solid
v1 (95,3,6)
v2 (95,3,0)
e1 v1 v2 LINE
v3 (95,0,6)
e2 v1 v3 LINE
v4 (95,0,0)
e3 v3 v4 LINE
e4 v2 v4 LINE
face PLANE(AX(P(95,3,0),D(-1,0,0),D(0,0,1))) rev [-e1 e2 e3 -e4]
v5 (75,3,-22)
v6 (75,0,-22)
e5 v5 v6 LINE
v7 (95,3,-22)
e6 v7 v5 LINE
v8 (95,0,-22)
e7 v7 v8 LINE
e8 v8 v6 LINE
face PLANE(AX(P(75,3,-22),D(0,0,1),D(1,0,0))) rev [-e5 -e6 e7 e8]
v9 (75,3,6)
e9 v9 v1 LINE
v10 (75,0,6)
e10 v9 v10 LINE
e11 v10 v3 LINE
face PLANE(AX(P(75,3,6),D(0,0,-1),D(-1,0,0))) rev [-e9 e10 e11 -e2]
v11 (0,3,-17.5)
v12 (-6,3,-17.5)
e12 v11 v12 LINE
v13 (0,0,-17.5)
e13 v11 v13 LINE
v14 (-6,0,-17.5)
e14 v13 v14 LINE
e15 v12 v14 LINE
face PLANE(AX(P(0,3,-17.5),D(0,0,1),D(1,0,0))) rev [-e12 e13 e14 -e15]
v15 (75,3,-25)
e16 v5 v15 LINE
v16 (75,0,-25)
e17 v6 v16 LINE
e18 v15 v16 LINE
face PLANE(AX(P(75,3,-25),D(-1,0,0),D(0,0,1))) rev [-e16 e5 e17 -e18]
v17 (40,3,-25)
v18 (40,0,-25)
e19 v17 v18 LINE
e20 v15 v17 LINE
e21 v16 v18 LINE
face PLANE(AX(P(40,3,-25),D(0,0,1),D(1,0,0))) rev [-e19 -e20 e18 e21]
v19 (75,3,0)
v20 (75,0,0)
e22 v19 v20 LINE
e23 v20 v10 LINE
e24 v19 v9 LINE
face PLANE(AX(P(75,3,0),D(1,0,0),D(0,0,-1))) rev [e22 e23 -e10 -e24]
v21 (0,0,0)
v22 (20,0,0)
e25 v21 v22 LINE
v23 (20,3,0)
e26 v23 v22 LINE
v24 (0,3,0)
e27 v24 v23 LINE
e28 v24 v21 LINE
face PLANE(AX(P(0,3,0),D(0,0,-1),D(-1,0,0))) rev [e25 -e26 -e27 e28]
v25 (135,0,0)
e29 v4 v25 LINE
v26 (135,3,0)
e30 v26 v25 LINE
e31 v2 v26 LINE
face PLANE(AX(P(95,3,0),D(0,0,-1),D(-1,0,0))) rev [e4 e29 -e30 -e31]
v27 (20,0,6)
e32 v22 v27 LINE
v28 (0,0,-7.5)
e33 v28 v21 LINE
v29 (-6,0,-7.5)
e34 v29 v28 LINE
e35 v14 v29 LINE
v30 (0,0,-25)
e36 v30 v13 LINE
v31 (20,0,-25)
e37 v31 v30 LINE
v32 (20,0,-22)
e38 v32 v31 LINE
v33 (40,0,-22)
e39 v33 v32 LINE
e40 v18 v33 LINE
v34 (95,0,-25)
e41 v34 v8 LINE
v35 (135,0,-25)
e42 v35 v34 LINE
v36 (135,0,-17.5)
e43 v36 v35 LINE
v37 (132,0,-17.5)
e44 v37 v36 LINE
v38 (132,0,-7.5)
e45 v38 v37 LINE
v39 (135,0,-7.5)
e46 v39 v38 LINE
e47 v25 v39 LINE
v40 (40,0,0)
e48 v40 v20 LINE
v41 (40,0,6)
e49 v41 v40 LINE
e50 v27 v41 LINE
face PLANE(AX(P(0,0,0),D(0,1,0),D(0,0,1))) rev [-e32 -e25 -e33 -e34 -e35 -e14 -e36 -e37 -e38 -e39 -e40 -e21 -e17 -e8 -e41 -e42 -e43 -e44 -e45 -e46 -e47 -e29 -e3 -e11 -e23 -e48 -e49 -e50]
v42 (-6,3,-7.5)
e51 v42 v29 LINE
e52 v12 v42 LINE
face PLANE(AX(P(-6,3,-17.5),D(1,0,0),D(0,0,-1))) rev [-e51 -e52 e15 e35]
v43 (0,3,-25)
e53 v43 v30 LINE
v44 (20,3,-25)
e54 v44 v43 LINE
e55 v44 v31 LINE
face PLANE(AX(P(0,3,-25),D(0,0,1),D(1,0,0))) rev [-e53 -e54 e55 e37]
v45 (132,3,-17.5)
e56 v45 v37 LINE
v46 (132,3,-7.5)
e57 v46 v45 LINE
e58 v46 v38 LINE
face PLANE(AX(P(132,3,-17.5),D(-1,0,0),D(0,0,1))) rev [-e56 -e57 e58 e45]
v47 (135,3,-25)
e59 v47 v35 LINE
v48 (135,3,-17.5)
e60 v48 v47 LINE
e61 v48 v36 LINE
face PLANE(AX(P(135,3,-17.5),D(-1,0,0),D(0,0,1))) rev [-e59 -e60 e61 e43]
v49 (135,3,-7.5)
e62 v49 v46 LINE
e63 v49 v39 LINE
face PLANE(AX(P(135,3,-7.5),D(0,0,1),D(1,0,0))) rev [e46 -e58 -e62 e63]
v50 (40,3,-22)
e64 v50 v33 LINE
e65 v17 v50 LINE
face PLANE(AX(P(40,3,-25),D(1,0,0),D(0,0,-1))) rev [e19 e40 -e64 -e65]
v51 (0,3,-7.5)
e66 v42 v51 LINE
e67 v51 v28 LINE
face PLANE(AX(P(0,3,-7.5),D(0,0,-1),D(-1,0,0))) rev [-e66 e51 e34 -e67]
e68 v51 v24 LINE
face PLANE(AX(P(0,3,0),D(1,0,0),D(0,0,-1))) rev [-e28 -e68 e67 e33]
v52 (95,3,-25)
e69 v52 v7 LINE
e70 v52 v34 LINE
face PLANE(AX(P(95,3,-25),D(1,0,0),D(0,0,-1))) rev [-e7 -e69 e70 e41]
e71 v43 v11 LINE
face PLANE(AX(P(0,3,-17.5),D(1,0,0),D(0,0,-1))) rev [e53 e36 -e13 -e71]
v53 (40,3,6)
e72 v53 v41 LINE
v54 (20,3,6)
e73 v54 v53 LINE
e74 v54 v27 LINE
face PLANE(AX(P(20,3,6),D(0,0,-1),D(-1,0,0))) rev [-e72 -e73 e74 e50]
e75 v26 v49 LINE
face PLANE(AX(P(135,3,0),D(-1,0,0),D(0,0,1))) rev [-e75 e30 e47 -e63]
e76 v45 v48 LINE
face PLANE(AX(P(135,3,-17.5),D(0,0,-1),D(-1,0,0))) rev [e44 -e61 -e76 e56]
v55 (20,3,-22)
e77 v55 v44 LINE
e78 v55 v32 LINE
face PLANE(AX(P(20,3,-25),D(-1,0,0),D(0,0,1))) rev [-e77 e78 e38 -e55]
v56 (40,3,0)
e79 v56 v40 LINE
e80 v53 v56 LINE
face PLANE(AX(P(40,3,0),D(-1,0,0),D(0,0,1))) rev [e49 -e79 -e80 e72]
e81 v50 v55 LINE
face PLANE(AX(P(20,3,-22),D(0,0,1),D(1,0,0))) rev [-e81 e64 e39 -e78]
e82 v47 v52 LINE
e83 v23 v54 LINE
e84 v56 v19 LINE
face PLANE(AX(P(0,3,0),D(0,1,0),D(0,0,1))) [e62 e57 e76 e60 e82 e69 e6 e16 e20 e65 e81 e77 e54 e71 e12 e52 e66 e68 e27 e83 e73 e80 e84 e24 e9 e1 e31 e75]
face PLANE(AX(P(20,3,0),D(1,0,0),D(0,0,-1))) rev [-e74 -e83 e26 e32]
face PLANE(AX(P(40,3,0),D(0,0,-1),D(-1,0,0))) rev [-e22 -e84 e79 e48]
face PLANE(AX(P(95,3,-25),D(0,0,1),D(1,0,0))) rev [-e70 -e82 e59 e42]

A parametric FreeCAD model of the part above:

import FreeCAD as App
import Part
import Sketcher
from FreeCAD import Vector


def add_polygon(sketch, points):
    """Adds a closed chain of lines whose ends are joined by coincident constraints."""
    first, n = sketch.GeometryCount, len(points)
    for a, b in zip(points, points[1:] + points[:1]):
        sketch.addGeometry(Part.LineSegment(App.Vector(*a, 0), App.Vector(*b, 0)), False)
    for i in range(n):
        sketch.addConstraint(Sketcher.Constraint("Coincident", first + i, 2, first + (i + 1) % n, 1))

doc = App.newDocument("Part")
body = doc.addObject("PartDesign::Body", "Body")

# Sketch on XZ plane
sketch1 = doc.addObject("Sketcher::SketchObject", "Sketch")
body.addObject(sketch1)
sketch1.AttachmentSupport = (doc.XZ_Plane, [""])
sketch1.MapMode = "FlatFace"
add_polygon(sketch1, [(135, -17.5), (135, -25), (95, -25), (95, -22), (75, -22), (75, -25), (40, -25), (40, -22), (20, -22), (20, -25), (0, -25), (0, -17.5), (-6, -17.5), (-6, -7.5), (0, -7.5), (0, 0), (20, 0), (20, 6), (40, 6), (40, 0), (75, 0), (75, 6), (95, 6), (95, 0), (135, 0), (135, -7.5), (132, -7.5), (132, -17.5)])  # lines 0-27
sketch1.addConstraint(Sketcher.Constraint("Vertical", 0))
sketch1.addConstraint(Sketcher.Constraint("Horizontal", 1))
sketch1.addConstraint(Sketcher.Constraint("Vertical", 2))
sketch1.addConstraint(Sketcher.Constraint("Horizontal", 3))
sketch1.addConstraint(Sketcher.Constraint("Vertical", 4))
sketch1.addConstraint(Sketcher.Constraint("Horizontal", 5))
sketch1.addConstraint(Sketcher.Constraint("Vertical", 6))
sketch1.addConstraint(Sketcher.Constraint("Horizontal", 7))
sketch1.addConstraint(Sketcher.Constraint("Vertical", 8))
sketch1.addConstraint(Sketcher.Constraint("Horizontal", 9))
sketch1.addConstraint(Sketcher.Constraint("Vertical", 10))
sketch1.addConstraint(Sketcher.Constraint("Horizontal", 11))
sketch1.addConstraint(Sketcher.Constraint("Vertical", 12))
sketch1.addConstraint(Sketcher.Constraint("Horizontal", 13))
sketch1.addConstraint(Sketcher.Constraint("Vertical", 14))
sketch1.addConstraint(Sketcher.Constraint("Horizontal", 15))
sketch1.addConstraint(Sketcher.Constraint("Vertical", 16))
sketch1.addConstraint(Sketcher.Constraint("Horizontal", 17))
sketch1.addConstraint(Sketcher.Constraint("Vertical", 18))
sketch1.addConstraint(Sketcher.Constraint("Horizontal", 19))
sketch1.addConstraint(Sketcher.Constraint("Vertical", 20))
sketch1.addConstraint(Sketcher.Constraint("Horizontal", 21))
sketch1.addConstraint(Sketcher.Constraint("Vertical", 22))
sketch1.addConstraint(Sketcher.Constraint("Horizontal", 23))
sketch1.addConstraint(Sketcher.Constraint("Vertical", 24))
sketch1.addConstraint(Sketcher.Constraint("Horizontal", 25))
sketch1.addConstraint(Sketcher.Constraint("Vertical", 26))
sketch1.addConstraint(Sketcher.Constraint("Horizontal", 27))
sketch1.addConstraint(Sketcher.Constraint("Coincident", 14, 2, -1, 1))
sketch1.addConstraint(Sketcher.Constraint("PointOnObject", 9, 2, -2))
sketch1.addConstraint(Sketcher.Constraint("PointOnObject", 18, 2, -1))
sketch1.addConstraint(Sketcher.Constraint("PointOnObject", 22, 2, -1))
sketch1.addConstraint(Sketcher.Constraint("Horizontal", 1, 2, 4, 2))
sketch1.addConstraint(Sketcher.Constraint("Horizontal", 3, 2, 6, 2))
sketch1.addConstraint(Sketcher.Constraint("Horizontal", 5, 2, 8, 2))
sketch1.addConstraint(Sketcher.Constraint("Horizontal", 17, 2, 20, 2))
sketch1.addConstraint(Sketcher.Constraint("Horizontal", 13, 2, 24, 2))
sketch1.addConstraint(Sketcher.Constraint("Horizontal", 11, 2, 26, 2))
sketch1.addConstraint(Sketcher.Constraint("Vertical", 8, 2, 15, 2))
sketch1.addConstraint(Sketcher.Constraint("Vertical", 6, 2, 17, 2))
sketch1.addConstraint(Sketcher.Constraint("Vertical", 4, 2, 19, 2))
sketch1.addConstraint(Sketcher.Constraint("Vertical", 2, 2, 21, 2))
sketch1.addConstraint(Sketcher.Constraint("Vertical", 0, 2, 23, 2))
sketch1.addConstraint(Sketcher.Constraint("Equal", 3, 7))
sketch1.addConstraint(Sketcher.Constraint("Equal", 7, 9))
sketch1.addConstraint(Sketcher.Constraint("Equal", 27, 2))
sketch1.addConstraint(Sketcher.Constraint("Equal", 10, 14))
sketch1.addConstraint(Sketcher.Constraint("Equal", 13, 16))
sketch1.addConstraint(Sketcher.Constraint("DistanceX", 1, 2, 1, 1, 40.0))
sketch1.addConstraint(Sketcher.Constraint("DistanceX", 3, 2, 3, 1, 20.0))
sketch1.addConstraint(Sketcher.Constraint("DistanceX", 5, 2, 5, 1, 35.0))
sketch1.addConstraint(Sketcher.Constraint("DistanceX", 11, 2, 11, 1, 6.0))
sketch1.addConstraint(Sketcher.Constraint("DistanceX", 25, 2, 25, 1, 3.0))
sketch1.addConstraint(Sketcher.Constraint("DistanceY", 12, 1, 12, 2, 10.0))
sketch1.addConstraint(Sketcher.Constraint("DistanceY", 0, 2, 0, 1, 7.5))
pad1 = doc.addObject("PartDesign::Pad", "Pad")
body.addObject(pad1)
pad1.Profile = sketch1
pad1.Length = 3
pad1.Reversed = True

doc.recompute()
